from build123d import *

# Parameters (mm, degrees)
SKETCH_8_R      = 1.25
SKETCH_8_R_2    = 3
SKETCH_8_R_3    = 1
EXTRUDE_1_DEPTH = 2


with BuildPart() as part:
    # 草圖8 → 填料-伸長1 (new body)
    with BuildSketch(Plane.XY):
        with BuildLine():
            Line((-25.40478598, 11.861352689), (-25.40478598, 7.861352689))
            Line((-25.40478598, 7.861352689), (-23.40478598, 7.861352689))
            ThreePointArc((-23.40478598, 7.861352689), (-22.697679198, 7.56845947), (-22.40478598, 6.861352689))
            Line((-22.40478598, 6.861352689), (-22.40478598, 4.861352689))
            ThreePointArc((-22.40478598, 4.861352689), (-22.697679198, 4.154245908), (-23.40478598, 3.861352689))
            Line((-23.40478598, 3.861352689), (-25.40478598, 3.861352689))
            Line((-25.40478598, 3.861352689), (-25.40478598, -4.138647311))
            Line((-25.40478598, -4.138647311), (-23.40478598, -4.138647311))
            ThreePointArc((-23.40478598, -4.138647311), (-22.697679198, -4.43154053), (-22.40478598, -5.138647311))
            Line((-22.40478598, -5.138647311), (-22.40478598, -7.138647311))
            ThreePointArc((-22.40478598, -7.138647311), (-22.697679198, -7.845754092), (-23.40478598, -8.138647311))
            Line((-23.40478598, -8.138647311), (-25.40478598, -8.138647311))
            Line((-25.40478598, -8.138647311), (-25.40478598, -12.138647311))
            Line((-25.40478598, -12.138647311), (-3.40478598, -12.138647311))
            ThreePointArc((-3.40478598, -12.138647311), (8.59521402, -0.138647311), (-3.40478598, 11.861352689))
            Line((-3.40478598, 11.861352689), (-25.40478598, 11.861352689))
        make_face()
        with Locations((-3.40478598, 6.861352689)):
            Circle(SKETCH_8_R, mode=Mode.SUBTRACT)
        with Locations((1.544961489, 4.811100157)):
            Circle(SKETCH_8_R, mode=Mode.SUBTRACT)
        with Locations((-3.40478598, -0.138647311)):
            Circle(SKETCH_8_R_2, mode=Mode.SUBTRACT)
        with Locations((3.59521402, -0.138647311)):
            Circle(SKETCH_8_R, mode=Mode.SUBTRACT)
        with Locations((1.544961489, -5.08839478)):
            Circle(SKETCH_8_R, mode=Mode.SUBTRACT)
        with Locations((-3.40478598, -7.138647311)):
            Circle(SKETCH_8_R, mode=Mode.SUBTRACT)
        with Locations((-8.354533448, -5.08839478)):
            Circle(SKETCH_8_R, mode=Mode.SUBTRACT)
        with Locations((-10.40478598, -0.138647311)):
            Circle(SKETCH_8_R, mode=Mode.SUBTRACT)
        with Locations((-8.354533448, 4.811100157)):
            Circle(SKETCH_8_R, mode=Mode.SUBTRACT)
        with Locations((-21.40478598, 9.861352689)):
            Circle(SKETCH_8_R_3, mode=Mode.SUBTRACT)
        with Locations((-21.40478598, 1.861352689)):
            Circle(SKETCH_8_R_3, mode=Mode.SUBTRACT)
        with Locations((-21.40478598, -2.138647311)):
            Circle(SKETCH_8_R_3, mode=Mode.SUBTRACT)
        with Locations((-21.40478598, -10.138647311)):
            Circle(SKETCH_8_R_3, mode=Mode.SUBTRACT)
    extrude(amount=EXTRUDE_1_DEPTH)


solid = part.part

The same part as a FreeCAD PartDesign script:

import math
import FreeCAD as App
import Part
import Sketcher
from FreeCAD import Vector
Q = App.Units.Quantity

doc = App.newDocument("Part")
body = doc.addObject("PartDesign::Body", "Body")

sketch1 = body.newObject("Sketcher::SketchObject", "Sketch")
sketch1.AttachmentSupport = (doc.getObject("XY_Plane"), [""])
sketch1.MapMode = "FlatFace"
sketch1.addGeometry([
    Part.LineSegment(Vector(-25.404786, 11.861353, 0), Vector(-25.404786, 7.861353, 0)),
    Part.LineSegment(Vector(-25.404786, 7.861353, 0), Vector(-23.404786, 7.861353, 0)),
    Part.ArcOfCircle(Part.Circle(Vector(-23.404786, 6.861353, 0), Vector(0, 0, 1), 1), math.radians(0), math.radians(90)),
    Part.LineSegment(Vector(-22.404786, 6.861353, 0), Vector(-22.404786, 4.861353, 0)),
    Part.ArcOfCircle(Part.Circle(Vector(-23.404786, 4.861353, 0), Vector(0, 0, 1), 1), math.radians(-90), math.radians(0)),
    Part.LineSegment(Vector(-23.404786, 3.861353, 0), Vector(-25.404786, 3.861353, 0)),
    Part.LineSegment(Vector(-25.404786, 3.861353, 0), Vector(-25.404786, -4.138647, 0)),
    Part.LineSegment(Vector(-25.404786, -4.138647, 0), Vector(-23.404786, -4.138647, 0)),
    Part.ArcOfCircle(Part.Circle(Vector(-23.404786, -5.138647, 0), Vector(0, 0, 1), 1), math.radians(0), math.radians(90)),
    Part.LineSegment(Vector(-22.404786, -5.138647, 0), Vector(-22.404786, -7.138647, 0)),
    Part.ArcOfCircle(Part.Circle(Vector(-23.404786, -7.138647, 0), Vector(0, 0, 1), 1), math.radians(-90), math.radians(0)),
    Part.LineSegment(Vector(-23.404786, -8.138647, 0), Vector(-25.404786, -8.138647, 0)),
    Part.LineSegment(Vector(-25.404786, -8.138647, 0), Vector(-25.404786, -12.138647, 0)),
    Part.LineSegment(Vector(-25.404786, -12.138647, 0), Vector(-3.404786, -12.138647, 0)),
    Part.ArcOfCircle(Part.Circle(Vector(-3.404786, -0.138647, 0), Vector(0, 0, 1), 12), math.radians(-90), math.radians(90)),
    Part.LineSegment(Vector(-3.404786, 11.861353, 0), Vector(-25.404786, 11.861353, 0)),
    Part.Circle(Vector(-21.404786, -10.138647, 0), Vector(0, 0, 1), 1),
    Part.Circle(Vector(-21.404786, -2.138647, 0), Vector(0, 0, 1), 1),
    Part.Circle(Vector(-3.404786, -7.138647, 0), Vector(0, 0, 1), 1.25),
    Part.Circle(Vector(-8.354533, -5.088395, 0), Vector(0, 0, 1), 1.25),
    Part.Circle(Vector(1.544961, -5.088395, 0), Vector(0, 0, 1), 1.25),
    Part.Circle(Vector(-21.404786, 1.861353, 0), Vector(0, 0, 1), 1),
    Part.Circle(Vector(-10.404786, -0.138647, 0), Vector(0, 0, 1), 1.25),
    Part.Circle(Vector(-21.404786, 9.861353, 0), Vector(0, 0, 1), 1),
    Part.Circle(Vector(-3.404786, -0.138647, 0), Vector(0, 0, 1), 3),
    Part.Circle(Vector(-8.354533, 4.8111, 0), Vector(0, 0, 1), 1.25),
    Part.Circle(Vector(3.595214, -0.138647, 0), Vector(0, 0, 1), 1.25),
    Part.Circle(Vector(1.544961, 4.8111, 0), Vector(0, 0, 1), 1.25),
    Part.Circle(Vector(-3.404786, 6.861353, 0), Vector(0, 0, 1), 1.25),
], False)
sketch1.addConstraint([
    Sketcher.Constraint("Coincident", 0, 2, 1, 1),
    Sketcher.Constraint("Tangent", 1, 2, 2, 2),
    Sketcher.Constraint("Tangent", 2, 1, 3, 1),
    Sketcher.Constraint("Tangent", 3, 2, 4, 2),
    Sketcher.Constraint("Tangent", 4, 1, 5, 1),
    Sketcher.Constraint("Coincident", 5, 2, 6, 1),
    Sketcher.Constraint("Coincident", 6, 2, 7, 1),
    Sketcher.Constraint("Tangent", 7, 2, 8, 2),
    Sketcher.Constraint("Tangent", 8, 1, 9, 1),
    Sketcher.Constraint("Tangent", 9, 2, 10, 2),
    Sketcher.Constraint("Tangent", 10, 1, 11, 1),
    Sketcher.Constraint("Coincident", 11, 2, 12, 1),
    Sketcher.Constraint("Coincident", 12, 2, 13, 1),
    Sketcher.Constraint("Tangent", 13, 2, 14, 1),
    Sketcher.Constraint("Tangent", 14, 2, 15, 1),
    Sketcher.Constraint("Coincident", 15, 2, 0, 1),
    Sketcher.Constraint("Vertical", 0),
    Sketcher.Constraint("Horizontal", 1),
    Sketcher.Constraint("Vertical", 3),
    Sketcher.Constraint("Horizontal", 5),
    Sketcher.Constraint("Vertical", 6),
    Sketcher.Constraint("Horizontal", 7),
    Sketcher.Constraint("Vertical", 9),
    Sketcher.Constraint("Horizontal", 11),
    Sketcher.Constraint("Vertical", 12),
    Sketcher.Constraint("Horizontal", 13),
    Sketcher.Constraint("Horizontal", 15),
    Sketcher.Constraint("Coincident", 24, 3, 14, 3),
    Sketcher.Constraint("Equal", 2, 4),
    Sketcher.Constraint("Equal", 4, 8),
    Sketcher.Constraint("Equal", 8, 10),
    Sketcher.Constraint("Equal", 10, 16),
    Sketcher.Constraint("Equal", 16, 17),
    Sketcher.Constraint("Equal", 18, 19),
    Sketcher.Constraint("Equal", 19, 20),
    Sketcher.Constraint("Equal", 17, 21),
    Sketcher.Constraint("Equal", 20, 22),
    Sketcher.Constraint("Equal", 21, 23),
    Sketcher.Constraint("Equal", 22, 25),
    Sketcher.Constraint("Equal", 25, 26),
    Sketcher.Constraint("Equal", 26, 27),
    Sketcher.Constraint("Equal", 27, 28),
    Sketcher.Constraint("Horizontal", 10, 3, 18, 3),
    Sketcher.Constraint("Horizontal", 19, 3, 20, 3),
    Sketcher.Constraint("Horizontal", 14, 3, 22, 3),
    Sketcher.Constraint("Horizontal", 24, 3, 26, 3),
    Sketcher.Constraint("Horizontal", 25, 3, 27, 3),
    Sketcher.Constraint("Horizontal", 2, 3, 28, 3),
    Sketcher.Constraint("Vertical", 4, 3, 8, 3),
    Sketcher.Constraint("Vertical", 16, 3, 17, 3),
    Sketcher.Constraint("Vertical", 14, 3, 18, 3),
    Sketcher.Constraint("Vertical", 17, 3, 21, 3),
    Sketcher.Constraint("Vertical", 21, 3, 23, 3),
    Sketcher.Constraint("Vertical", 19, 3, 25, 3),
    Sketcher.Constraint("Vertical", 20, 3, 27, 3),
    Sketcher.Constraint("Vertical", 24, 3, 28, 3),
    Sketcher.Constraint("Vertical", 0, 2, 5, 2),
    Sketcher.Constraint("Vertical", 6, 2, 11, 2),
    Sketcher.Constraint("Equal", 11, 3),
    Sketcher.Constraint("Equal", 3, 9),
    Sketcher.Constraint("Equal", 0, 12),
    Sketcher.Constraint("Diameter", 16, Q("2 mm")),
    Sketcher.Constraint("Diameter", 24, Q("6 mm")),
    Sketcher.Constraint("Radius", 14, Q("12 mm")),
    Sketcher.Constraint("Diameter", 18, Q("2.5 mm")),
    Sketcher.Constraint("DistanceX", 1, 1, 1, 2, Q("2 mm")),
    Sketcher.Constraint("DistanceX", 13, 1, 13, 2, Q("22 mm")),
    Sketcher.Constraint("DistanceY", 0, 2, 0, 1, Q("4 mm")),
    Sketcher.Constraint("DistanceX", 10, 3, 16, 3, Q("2 mm")),
    Sketcher.Constraint("DistanceY", 16, 3, 10, 3, Q("3 mm")),
    Sketcher.Constraint("DistanceY", 8, 3, 17, 3, Q("3 mm")),
    Sketcher.Constraint("DistanceY", 21, 3, 4, 3, Q("3 mm")),
    Sketcher.Constraint("DistanceX", 22, 3, 14, 3, Q("7 mm")),
    Sketcher.Constraint("DistanceY", 2, 3, 23, 3, Q("3 mm")),
    Sketcher.Constraint("DistanceX", 14, 3, 26, 3, Q("7 mm")),
    Sketcher.Constraint("DistanceY", -1, 1, 25, 3, Q("4.8111 mm")),
    Sketcher.Constraint("DistanceX", -1, 1, 20, 3, Q("1.544961 mm")),
    Sketcher.Constraint("DistanceX", 2, 3, -1, 1, Q("23.404786 mm")),
    Sketcher.Constraint("DistanceY", -1, 1, 2, 3, Q("6.861353 mm")),
    Sketcher.Constraint("DistanceX", 19, 3, -1, 1, Q("8.354533 mm")),
    Sketcher.Constraint("DistanceY", 19, 3, -1, 1, Q("5.088395 mm")),
])
pad1 = body.newObject("PartDesign::Pad", "Pad")
pad1.Profile = sketch1
pad1.Length = 2

doc.recompute()
